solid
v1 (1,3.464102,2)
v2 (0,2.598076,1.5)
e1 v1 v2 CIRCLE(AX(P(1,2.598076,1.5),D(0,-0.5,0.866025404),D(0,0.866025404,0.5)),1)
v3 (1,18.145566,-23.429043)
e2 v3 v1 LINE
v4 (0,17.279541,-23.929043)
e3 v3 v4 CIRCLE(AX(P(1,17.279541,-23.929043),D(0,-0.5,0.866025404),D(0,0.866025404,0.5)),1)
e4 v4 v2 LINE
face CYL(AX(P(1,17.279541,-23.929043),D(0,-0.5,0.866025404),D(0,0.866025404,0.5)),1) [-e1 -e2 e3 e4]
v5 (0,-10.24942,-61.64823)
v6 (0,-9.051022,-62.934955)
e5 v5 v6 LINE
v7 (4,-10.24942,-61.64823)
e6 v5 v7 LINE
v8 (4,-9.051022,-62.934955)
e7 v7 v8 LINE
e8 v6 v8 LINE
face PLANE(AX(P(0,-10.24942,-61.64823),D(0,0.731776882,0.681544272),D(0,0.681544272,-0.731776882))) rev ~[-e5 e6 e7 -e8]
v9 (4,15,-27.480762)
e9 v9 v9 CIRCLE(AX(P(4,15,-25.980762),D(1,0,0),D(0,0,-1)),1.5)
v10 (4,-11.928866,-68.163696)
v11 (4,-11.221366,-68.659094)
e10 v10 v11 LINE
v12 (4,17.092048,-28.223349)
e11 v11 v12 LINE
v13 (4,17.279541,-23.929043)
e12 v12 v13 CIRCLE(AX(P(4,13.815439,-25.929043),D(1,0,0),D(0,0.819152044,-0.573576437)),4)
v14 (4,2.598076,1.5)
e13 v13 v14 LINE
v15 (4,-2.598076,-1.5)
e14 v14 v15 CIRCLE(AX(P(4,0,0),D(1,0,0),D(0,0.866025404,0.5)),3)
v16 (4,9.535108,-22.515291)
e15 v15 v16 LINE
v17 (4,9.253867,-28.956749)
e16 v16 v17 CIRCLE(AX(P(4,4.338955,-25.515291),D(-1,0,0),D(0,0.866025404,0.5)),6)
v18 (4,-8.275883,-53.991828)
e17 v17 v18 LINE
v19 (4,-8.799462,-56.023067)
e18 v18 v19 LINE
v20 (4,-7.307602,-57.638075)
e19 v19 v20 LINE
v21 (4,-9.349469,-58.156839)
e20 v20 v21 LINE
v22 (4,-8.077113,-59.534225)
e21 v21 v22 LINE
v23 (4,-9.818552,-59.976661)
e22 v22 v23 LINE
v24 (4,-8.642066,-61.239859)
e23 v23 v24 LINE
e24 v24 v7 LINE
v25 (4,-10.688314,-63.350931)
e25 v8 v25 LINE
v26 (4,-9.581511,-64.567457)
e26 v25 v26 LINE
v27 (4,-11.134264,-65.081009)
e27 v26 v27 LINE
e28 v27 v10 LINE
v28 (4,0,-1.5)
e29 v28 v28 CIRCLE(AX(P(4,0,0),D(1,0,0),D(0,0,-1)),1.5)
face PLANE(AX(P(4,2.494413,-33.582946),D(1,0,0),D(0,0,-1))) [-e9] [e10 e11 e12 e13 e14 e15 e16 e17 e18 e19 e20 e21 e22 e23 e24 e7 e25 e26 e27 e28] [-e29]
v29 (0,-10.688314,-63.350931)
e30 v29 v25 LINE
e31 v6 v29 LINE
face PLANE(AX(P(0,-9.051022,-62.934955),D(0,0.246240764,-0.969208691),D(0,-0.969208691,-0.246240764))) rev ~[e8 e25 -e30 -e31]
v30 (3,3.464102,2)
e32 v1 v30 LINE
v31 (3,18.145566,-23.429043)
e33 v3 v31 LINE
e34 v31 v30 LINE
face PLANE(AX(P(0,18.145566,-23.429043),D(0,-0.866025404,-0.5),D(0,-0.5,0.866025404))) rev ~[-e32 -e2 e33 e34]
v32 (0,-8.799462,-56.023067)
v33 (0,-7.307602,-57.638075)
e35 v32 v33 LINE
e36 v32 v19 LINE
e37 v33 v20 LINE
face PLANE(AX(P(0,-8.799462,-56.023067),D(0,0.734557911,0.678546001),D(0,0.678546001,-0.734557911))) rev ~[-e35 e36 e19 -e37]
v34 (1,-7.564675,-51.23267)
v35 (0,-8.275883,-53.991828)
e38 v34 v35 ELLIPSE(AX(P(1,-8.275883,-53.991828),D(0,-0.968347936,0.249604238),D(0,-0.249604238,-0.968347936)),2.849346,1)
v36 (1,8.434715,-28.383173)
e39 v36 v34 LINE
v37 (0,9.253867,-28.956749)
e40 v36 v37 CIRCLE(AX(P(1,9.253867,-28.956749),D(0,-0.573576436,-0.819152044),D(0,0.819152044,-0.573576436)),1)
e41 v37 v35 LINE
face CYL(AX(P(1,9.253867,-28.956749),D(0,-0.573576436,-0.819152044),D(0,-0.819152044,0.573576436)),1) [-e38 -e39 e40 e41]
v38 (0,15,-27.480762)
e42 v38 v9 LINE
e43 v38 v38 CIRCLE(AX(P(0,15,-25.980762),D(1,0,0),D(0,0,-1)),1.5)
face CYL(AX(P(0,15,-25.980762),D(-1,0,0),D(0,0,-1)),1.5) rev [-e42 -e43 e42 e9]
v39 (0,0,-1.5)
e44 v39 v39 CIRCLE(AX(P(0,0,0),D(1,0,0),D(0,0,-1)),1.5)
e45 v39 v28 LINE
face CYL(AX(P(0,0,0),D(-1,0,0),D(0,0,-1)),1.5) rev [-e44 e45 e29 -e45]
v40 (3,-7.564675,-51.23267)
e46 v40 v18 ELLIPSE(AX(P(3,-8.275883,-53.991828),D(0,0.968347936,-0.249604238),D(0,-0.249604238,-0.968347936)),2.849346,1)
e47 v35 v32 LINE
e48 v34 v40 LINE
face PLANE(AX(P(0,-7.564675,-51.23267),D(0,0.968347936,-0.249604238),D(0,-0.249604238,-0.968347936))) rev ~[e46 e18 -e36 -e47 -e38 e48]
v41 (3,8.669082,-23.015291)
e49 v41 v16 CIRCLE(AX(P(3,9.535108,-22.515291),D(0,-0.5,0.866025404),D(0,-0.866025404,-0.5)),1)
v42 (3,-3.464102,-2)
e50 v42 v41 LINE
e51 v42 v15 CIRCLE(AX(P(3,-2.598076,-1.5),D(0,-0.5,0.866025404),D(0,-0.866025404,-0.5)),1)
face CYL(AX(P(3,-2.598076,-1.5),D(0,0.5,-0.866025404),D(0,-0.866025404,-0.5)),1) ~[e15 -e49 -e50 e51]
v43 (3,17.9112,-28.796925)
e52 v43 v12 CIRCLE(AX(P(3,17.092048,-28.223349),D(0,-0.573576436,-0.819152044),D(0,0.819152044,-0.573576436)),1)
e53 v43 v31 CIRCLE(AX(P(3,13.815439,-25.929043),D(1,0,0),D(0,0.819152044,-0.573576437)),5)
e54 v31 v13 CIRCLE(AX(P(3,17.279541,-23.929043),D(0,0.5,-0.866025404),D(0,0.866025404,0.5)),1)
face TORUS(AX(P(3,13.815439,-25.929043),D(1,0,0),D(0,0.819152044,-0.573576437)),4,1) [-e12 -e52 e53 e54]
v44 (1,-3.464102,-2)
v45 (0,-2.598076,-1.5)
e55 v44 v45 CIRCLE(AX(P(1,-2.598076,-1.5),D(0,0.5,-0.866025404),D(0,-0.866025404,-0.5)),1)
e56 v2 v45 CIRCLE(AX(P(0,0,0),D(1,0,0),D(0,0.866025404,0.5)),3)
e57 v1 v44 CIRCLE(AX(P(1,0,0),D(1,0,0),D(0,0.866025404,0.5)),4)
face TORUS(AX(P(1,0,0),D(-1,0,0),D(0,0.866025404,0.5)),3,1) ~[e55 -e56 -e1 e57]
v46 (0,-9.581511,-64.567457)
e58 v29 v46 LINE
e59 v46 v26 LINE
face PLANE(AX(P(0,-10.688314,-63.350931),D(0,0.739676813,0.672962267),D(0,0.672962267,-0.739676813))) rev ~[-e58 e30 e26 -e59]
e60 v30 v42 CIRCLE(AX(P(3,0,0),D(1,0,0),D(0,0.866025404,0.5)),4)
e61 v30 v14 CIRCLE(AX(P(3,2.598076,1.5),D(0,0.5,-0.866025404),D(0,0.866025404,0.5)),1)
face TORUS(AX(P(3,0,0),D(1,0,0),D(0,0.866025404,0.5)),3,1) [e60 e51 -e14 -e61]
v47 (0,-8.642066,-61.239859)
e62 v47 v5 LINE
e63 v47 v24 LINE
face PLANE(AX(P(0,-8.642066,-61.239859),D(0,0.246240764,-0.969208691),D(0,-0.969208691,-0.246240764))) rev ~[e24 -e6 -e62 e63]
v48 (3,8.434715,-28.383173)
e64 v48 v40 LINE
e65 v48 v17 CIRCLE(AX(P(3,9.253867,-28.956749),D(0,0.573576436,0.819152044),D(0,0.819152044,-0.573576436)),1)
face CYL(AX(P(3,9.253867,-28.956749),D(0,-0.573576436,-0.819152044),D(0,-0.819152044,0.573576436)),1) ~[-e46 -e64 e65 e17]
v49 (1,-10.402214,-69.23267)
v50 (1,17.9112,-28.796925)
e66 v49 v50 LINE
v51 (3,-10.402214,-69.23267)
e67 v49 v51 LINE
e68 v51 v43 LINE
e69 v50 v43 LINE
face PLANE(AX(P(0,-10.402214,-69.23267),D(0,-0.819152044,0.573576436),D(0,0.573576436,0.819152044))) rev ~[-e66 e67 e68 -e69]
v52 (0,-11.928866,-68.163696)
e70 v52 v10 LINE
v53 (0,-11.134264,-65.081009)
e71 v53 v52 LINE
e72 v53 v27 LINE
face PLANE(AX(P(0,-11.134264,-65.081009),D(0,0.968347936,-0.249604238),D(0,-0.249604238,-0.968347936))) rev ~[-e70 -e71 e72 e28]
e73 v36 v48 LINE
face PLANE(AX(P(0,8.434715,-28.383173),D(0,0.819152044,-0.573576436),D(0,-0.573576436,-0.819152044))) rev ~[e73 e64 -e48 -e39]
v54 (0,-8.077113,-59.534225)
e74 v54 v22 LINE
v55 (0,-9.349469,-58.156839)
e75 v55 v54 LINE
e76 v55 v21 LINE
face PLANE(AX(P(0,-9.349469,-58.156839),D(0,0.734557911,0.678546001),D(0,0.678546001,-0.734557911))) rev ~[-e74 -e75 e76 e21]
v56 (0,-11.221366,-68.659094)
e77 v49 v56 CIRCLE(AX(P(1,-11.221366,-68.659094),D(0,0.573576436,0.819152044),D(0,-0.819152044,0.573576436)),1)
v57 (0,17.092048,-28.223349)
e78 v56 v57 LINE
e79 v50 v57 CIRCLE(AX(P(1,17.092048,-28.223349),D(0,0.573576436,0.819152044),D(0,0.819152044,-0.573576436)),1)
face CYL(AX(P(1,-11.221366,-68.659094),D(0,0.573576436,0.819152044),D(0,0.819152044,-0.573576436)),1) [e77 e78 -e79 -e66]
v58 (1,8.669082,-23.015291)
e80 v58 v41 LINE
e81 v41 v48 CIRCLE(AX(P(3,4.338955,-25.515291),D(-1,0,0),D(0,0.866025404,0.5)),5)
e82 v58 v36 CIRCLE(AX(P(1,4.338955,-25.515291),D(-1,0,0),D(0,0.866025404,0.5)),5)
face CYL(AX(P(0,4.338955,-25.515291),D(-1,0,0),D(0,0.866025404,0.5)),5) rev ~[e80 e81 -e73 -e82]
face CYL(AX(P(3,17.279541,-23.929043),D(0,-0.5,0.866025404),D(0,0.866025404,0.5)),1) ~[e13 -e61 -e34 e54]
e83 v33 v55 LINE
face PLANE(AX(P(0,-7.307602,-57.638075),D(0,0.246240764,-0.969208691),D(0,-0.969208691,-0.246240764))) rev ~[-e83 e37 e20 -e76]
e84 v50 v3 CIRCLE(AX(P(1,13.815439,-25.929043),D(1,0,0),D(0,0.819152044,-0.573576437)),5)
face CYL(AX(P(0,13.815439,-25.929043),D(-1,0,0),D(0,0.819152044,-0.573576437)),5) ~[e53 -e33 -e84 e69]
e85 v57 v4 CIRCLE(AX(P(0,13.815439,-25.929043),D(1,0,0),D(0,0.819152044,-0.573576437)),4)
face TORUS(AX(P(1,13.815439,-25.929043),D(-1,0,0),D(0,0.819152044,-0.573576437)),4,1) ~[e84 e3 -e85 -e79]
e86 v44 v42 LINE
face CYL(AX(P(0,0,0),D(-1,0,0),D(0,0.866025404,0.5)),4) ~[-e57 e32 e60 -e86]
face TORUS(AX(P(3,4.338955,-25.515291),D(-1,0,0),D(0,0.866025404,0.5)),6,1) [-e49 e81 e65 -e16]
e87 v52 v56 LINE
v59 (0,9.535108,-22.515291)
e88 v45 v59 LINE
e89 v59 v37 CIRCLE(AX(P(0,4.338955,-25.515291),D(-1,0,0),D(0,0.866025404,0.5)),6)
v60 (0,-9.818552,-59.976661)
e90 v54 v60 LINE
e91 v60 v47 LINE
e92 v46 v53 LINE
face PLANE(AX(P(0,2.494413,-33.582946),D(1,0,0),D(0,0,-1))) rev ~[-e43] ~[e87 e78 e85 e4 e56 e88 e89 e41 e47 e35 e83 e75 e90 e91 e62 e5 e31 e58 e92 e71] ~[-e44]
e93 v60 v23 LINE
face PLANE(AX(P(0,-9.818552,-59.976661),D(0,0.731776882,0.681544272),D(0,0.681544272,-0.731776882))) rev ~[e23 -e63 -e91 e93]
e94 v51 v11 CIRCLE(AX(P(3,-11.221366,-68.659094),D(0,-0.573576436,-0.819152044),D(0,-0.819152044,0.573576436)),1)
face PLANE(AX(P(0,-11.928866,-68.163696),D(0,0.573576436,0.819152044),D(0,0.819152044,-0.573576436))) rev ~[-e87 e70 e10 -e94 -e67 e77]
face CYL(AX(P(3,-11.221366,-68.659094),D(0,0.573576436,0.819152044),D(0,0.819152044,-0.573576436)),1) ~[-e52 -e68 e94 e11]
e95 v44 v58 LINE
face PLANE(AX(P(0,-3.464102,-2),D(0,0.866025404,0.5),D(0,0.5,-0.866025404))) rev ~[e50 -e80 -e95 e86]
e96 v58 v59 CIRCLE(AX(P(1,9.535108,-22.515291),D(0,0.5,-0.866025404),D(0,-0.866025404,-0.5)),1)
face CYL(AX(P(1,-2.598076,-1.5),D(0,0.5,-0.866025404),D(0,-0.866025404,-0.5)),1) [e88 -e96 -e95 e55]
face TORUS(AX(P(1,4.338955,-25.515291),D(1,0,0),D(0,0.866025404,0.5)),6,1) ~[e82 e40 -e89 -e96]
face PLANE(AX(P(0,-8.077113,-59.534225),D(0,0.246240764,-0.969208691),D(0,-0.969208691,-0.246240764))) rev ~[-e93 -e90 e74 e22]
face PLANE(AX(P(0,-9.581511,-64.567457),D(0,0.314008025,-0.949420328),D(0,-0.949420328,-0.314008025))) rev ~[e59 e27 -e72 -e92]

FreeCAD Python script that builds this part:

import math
import FreeCAD as App
import Part
import Sketcher

V = App.Vector
Q = App.Units.Quantity


def edges_at(feature, points):
    """Names of the edges that pass closest to the given points."""
    edges = feature.Shape.Edges
    near = lambda p: min(range(len(edges)), key=lambda i: edges[i].distToShape(Part.Vertex(*p))[0])
    return sorted({f"Edge{near(p) + 1}" for p in points})

doc = App.newDocument("Part")
body = doc.addObject("PartDesign::Body", "Body")

# Sketch on YZ plane
sketch1 = body.newObject("Sketcher::SketchObject", "Sketch")
sketch1.AttachmentSupport = (doc.getObject("YZ_Plane"), [""])
sketch1.MapMode = "FlatFace"
sketch1.addGeometry(Part.LineSegment(V(-3.5, -2, 0), V(8.7, -23, 0)), False)
sketch1.addGeometry(Part.ArcOfCircle(Part.Circle(V(4.3, -25.5, 0), V(0, 0, 1), 5), math.radians(-35), math.radians(30)), False)
sketch1.addGeometry(Part.LineSegment(V(8.4, -28.4, 0), V(-7.6, -51.2, 0)), False)
sketch1.addGeometry(Part.LineSegment(V(-7.6, -51.2, 0), V(-8.8, -56, 0)), False)
sketch1.addGeometry(Part.LineSegment(V(-8.8, -56, 0), V(-7.3, -57.6, 0)), False)
sketch1.addGeometry(Part.LineSegment(V(-7.3, -57.6, 0), V(-9.3, -58.2, 0)), False)
sketch1.addGeometry(Part.LineSegment(V(-9.3, -58.2, 0), V(-8.1, -59.5, 0)), False)
sketch1.addGeometry(Part.LineSegment(V(-8.1, -59.5, 0), V(-9.8, -60, 0)), False)
sketch1.addGeometry(Part.LineSegment(V(-9.8, -60, 0), V(-8.6, -61.2, 0)), False)
sketch1.addGeometry(Part.LineSegment(V(-8.6, -61.2, 0), V(-10.2, -61.6, 0)), False)
sketch1.addGeometry(Part.LineSegment(V(-10.2, -61.6, 0), V(-9.1, -62.9, 0)), False)
sketch1.addGeometry(Part.LineSegment(V(-9.1, -62.9, 0), V(-10.7, -63.4, 0)), False)
sketch1.addGeometry(Part.LineSegment(V(-10.7, -63.4, 0), V(-9.6, -64.6, 0)), False)
sketch1.addGeometry(Part.LineSegment(V(-9.6, -64.6, 0), V(-11.1, -65.1, 0)), False)
sketch1.addGeometry(Part.LineSegment(V(-11.1, -65.1, 0), V(-11.9, -68.2, 0)), False)
sketch1.addGeometry(Part.LineSegment(V(-11.9, -68.2, 0), V(-10.4, -69.2, 0)), False)
sketch1.addGeometry(Part.LineSegment(V(-10.4, -69.2, 0), V(17.9, -28.8, 0)), False)
sketch1.addGeometry(Part.ArcOfCircle(Part.Circle(V(13.8, -25.9, 0), V(0, 0, 1), 5), math.radians(-35), math.radians(30)), False)
sketch1.addGeometry(Part.LineSegment(V(18.1, -23.4, 0), V(3.5, 2, 0)), False)
sketch1.addGeometry(Part.ArcOfCircle(Part.Circle(V(0, 0, 0), V(0, 0, 1), 4), math.radians(30), math.radians(210)), False)
sketch1.addGeometry(Part.Circle(V(0, 0, 0), V(0, 0, 1), 1.5), False)
sketch1.addGeometry(Part.Circle(V(15, -26, 0), V(0, 0, 1), 1.5), False)
sketch1.addConstraint(Sketcher.Constraint("Tangent", 0, 2, 1, 2))
sketch1.addConstraint(Sketcher.Constraint("Tangent", 1, 1, 2, 1))
sketch1.addConstraint(Sketcher.Constraint("Coincident", 2, 2, 3, 1))
sketch1.addConstraint(Sketcher.Constraint("Coincident", 3, 2, 4, 1))
sketch1.addConstraint(Sketcher.Constraint("Coincident", 4, 2, 5, 1))
sketch1.addConstraint(Sketcher.Constraint("Coincident", 5, 2, 6, 1))
sketch1.addConstraint(Sketcher.Constraint("Coincident", 6, 2, 7, 1))
sketch1.addConstraint(Sketcher.Constraint("Coincident", 7, 2, 8, 1))
sketch1.addConstraint(Sketcher.Constraint("Coincident", 8, 2, 9, 1))
sketch1.addConstraint(Sketcher.Constraint("Coincident", 9, 2, 10, 1))
sketch1.addConstraint(Sketcher.Constraint("Coincident", 10, 2, 11, 1))
sketch1.addConstraint(Sketcher.Constraint("Coincident", 11, 2, 12, 1))
sketch1.addConstraint(Sketcher.Constraint("Coincident", 12, 2, 13, 1))
sketch1.addConstraint(Sketcher.Constraint("Coincident", 13, 2, 14, 1))
sketch1.addConstraint(Sketcher.Constraint("Coincident", 14, 2, 15, 1))
sketch1.addConstraint(Sketcher.Constraint("Coincident", 15, 2, 16, 1))
sketch1.addConstraint(Sketcher.Constraint("Tangent", 16, 2, 17, 1))
sketch1.addConstraint(Sketcher.Constraint("Tangent", 17, 2, 18, 1))
sketch1.addConstraint(Sketcher.Constraint("Tangent", 18, 2, 19, 1))
sketch1.addConstraint(Sketcher.Constraint("Tangent", 19, 2, 0, 1))
sketch1.addConstraint(Sketcher.Constraint("Coincident", 19, 3, -1, 1))
sketch1.addConstraint(Sketcher.Constraint("Coincident", 20, 3, -1, 1))
sketch1.addConstraint(Sketcher.Constraint("Equal", 1, 17))
sketch1.addConstraint(Sketcher.Constraint("Equal", 20, 21))
sketch1.addConstraint(Sketcher.Constraint("Parallel", 4, 6))
sketch1.addConstraint(Sketcher.Constraint("Parallel", 5, 7))
sketch1.addConstraint(Sketcher.Constraint("Parallel", 7, 9))
sketch1.addConstraint(Sketcher.Constraint("Parallel", 8, 10))
sketch1.addConstraint(Sketcher.Constraint("Parallel", 9, 11))
sketch1.addConstraint(Sketcher.Constraint("Parallel", 3, 14))
sketch1.addConstraint(Sketcher.Constraint("Perpendicular", 2, 15))
sketch1.addConstraint(Sketcher.Constraint("Perpendicular", 15, 16))
sketch1.addConstraint(Sketcher.Constraint("Parallel", 0, 18))
sketch1.addConstraint(Sketcher.Constraint("Diameter", 20, 3.0))
sketch1.addConstraint(Sketcher.Constraint("Radius", 1, 5.0))
sketch1.addConstraint(Sketcher.Constraint("Radius", 19, 4.0))
sketch1.addConstraint(Sketcher.Constraint("Angle", 0, Q("-60 deg")))
sketch1.addConstraint(Sketcher.Constraint("Angle", 2, Q("-125 deg")))
sketch1.addConstraint(Sketcher.Constraint("DistanceX", -1, 1, 21, 3, 15.0))
sketch1.addConstraint(Sketcher.Constraint("Distance", 15, 1.863699))
sketch1.addConstraint(Sketcher.Constraint("DistanceX", -1, 1, 16, 2, 17.9112))
sketch1.addConstraint(Sketcher.Constraint("DistanceX", 3, 2, 17, 3, 22.614901))
sketch1.addConstraint(Sketcher.Constraint("DistanceX", 9, 2, 10, 2, 1.198398))
sketch1.addConstraint(Sketcher.Constraint("DistanceY", 11, 2, 9, 2, 1.702701))
sketch1.addConstraint(Sketcher.Constraint("DistanceX", 11, 2, 6, 2, 2.611201))
sketch1.addConstraint(Sketcher.Constraint("DistanceX", 11, 2, 15, 2, 0.2861))
sketch1.addConstraint(Sketcher.Constraint("Distance", 3, 4.946979))
sketch1.addConstraint(Sketcher.Constraint("Distance", 6, 1.875122))
sketch1.addConstraint(Sketcher.Constraint("Distance", 9, 1.658419))
sketch1.addConstraint(Sketcher.Constraint("Distance", 14, 3.18345))
sketch1.addConstraint(Sketcher.Constraint("Distance", 16, 49.36293))
sketch1.addConstraint(Sketcher.Constraint("DistanceY", 1, 3, -1, 1, 25.515291))
sketch1.addConstraint(Sketcher.Constraint("DistanceY", 2, 2, -1, 1, 51.23267))
sketch1.addConstraint(Sketcher.Constraint("DistanceX", 5, 2, -1, 1, 9.349469))
sketch1.addConstraint(Sketcher.Constraint("DistanceY", 5, 2, -1, 1, 58.156839))
sketch1.addConstraint(Sketcher.Constraint("DistanceX", 7, 2, -1, 1, 9.818552))
sketch1.addConstraint(Sketcher.Constraint("DistanceY", 7, 2, -1, 1, 59.976661))
sketch1.addConstraint(Sketcher.Constraint("DistanceY", 8, 2, -1, 1, 61.239859))
sketch1.addConstraint(Sketcher.Constraint("DistanceX", 12, 2, -1, 1, 9.581511))
sketch1.addConstraint(Sketcher.Constraint("DistanceY", 21, 3, 17, 3, 0.051719))
sketch1.addConstraint(Sketcher.Constraint("DistanceY", 13, 2, 12, 2, 0.513552))
pad1 = body.newObject("PartDesign::Pad", "Pad")
pad1.Profile = sketch1
pad1.Length = 4
doc.recompute()

fillet = body.newObject("PartDesign::Fillet", "Fillet")
fillet.Base = (pad1, edges_at(pad1, [
    (4, 9.334, -25.733),
    (4, 0.435, -39.808),
    (0, 10.805, -10.715),
    (0, 18.811, -26.147),
    (0, 3.754, -49.015),
    (0, 0.435, -39.808),
    (0, 9.334, -25.733),
    (0, 2.602, -12.508),
    (0, -2, 3.464),
    (4, -2, 3.464),
    (4, 3.754, -49.015),
    (4, 18.811, -26.147),
    (4, 10.805, -10.715),
    (4, 2.602, -12.508),
]))
fillet.Radius = 1

doc.recompute()
